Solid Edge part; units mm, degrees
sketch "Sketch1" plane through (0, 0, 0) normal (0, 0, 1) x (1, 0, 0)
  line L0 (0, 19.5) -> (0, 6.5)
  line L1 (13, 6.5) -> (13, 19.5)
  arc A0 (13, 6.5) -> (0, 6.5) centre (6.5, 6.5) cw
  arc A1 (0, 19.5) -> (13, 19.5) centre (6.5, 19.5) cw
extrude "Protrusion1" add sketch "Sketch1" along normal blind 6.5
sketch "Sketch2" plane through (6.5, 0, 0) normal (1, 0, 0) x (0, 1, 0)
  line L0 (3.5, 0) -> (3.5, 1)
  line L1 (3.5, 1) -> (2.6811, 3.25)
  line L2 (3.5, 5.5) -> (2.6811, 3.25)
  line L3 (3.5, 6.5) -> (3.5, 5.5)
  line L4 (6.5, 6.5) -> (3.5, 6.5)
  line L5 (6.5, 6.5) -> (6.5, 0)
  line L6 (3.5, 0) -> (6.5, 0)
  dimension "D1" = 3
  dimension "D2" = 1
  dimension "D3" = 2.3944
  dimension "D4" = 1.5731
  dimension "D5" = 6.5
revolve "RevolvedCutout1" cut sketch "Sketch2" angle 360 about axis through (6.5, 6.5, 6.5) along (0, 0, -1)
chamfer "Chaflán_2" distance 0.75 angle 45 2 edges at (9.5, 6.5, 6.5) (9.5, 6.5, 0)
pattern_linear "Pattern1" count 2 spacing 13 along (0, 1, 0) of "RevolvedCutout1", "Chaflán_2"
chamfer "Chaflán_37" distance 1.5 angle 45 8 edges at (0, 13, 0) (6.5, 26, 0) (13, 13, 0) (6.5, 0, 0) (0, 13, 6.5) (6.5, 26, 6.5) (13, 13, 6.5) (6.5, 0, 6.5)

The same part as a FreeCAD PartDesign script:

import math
import FreeCAD as App
import Part
import Sketcher
from FreeCAD import Vector
Q = App.Units.Quantity


def edges_at(feature, points):
    """Names of the edges that pass closest to the given points."""
    edges = feature.Shape.Edges
    near = lambda p: min(range(len(edges)), key=lambda i: edges[i].distToShape(Part.Vertex(*p))[0])
    return sorted({f"Edge{near(p) + 1}" for p in points})

doc = App.newDocument("Part")
params = doc.addObject("Spreadsheet::Sheet", "Params")
for row, (alias, value) in enumerate([
    ("sketch1_radius", "6.5 mm"),
    ("sketch1_height", "13 mm"),
    ("pad1_length", "6.5 mm"),
    ("sketch2_width", "3 mm"),
    ("sketch2_height", "1 mm"),
    ("sketch2_height2", "6.5 mm"),
    ("groove_angle", "360 deg"),
    ("chamfer_size", "0.75 mm"),
    ("linearpattern_pitch", "13 mm"),
    ("chamfer2_size", "1.5 mm"),
], start=1):
    params.set(f"A{row}", alias)
    params.set(f"B{row}", "=" + value)
    params.setAlias(f"B{row}", alias)

body = doc.addObject("PartDesign::Body", "Body")

sketch1 = doc.addObject("Sketcher::SketchObject", "Sketch")
body.addObject(sketch1)
sketch1.AttachmentSupport = (doc.XY_Plane, [""])
sketch1.MapMode = "FlatFace"
sketch1.addGeometry(Part.ArcOfCircle(Part.Circle(Vector(6, 20, 0), Vector(0, 0, 1), 6), math.radians(0), math.radians(180)), False)
sketch1.addGeometry(Part.LineSegment(Vector(0, 20, 0), Vector(0, 6, 0)), False)
sketch1.addGeometry(Part.ArcOfCircle(Part.Circle(Vector(6, 6, 0), Vector(0, 0, 1), 6), math.radians(180), math.radians(360)), False)
sketch1.addGeometry(Part.LineSegment(Vector(13, 6, 0), Vector(13, 20, 0)), False)
sketch1.addConstraint(Sketcher.Constraint("Tangent", 0, 2, 1, 1))
sketch1.addConstraint(Sketcher.Constraint("Tangent", 1, 2, 2, 1))
sketch1.addConstraint(Sketcher.Constraint("Tangent", 2, 2, 3, 1))
sketch1.addConstraint(Sketcher.Constraint("Tangent", 3, 2, 0, 1))
sketch1.addConstraint(Sketcher.Constraint("Vertical", 1))
sketch1.addConstraint(Sketcher.Constraint("Vertical", 3))
sketch1.addConstraint(Sketcher.Constraint("PointOnObject", 0, 2, -2))
sketch1.addConstraint(Sketcher.Constraint("Radius", 0, 6.5))
sketch1.addConstraint(Sketcher.Constraint("DistanceY", 1, 2, 1, 1, 13.0))
sketch1.addConstraint(Sketcher.Constraint("DistanceY", -1, 1, 0, 3, 19.5))
sketch1.setExpression("Constraints[7]", "Params.sketch1_radius")
sketch1.setExpression("Constraints[8]", "Params.sketch1_height")
pad1 = doc.addObject("PartDesign::Pad", "Pad")
body.addObject(pad1)
pad1.Profile = sketch1
pad1.setExpression("Length", "Params.pad1_length")

sketch2 = doc.addObject("Sketcher::SketchObject", "Sketch001")
body.addObject(sketch2)
sketch2.AttachmentSupport = (doc.YZ_Plane, [""])
sketch2.MapMode = "FlatFace"
sketch2.AttachmentOffset = App.Placement(Vector(0, 0, 6.5), App.Rotation())
sketch2.addGeometry(Part.LineSegment(Vector(3.5, 1, 0), Vector(3.5, 0, 0)), False)
sketch2.addGeometry(Part.LineSegment(Vector(3.5, 0, 0), Vector(6.5, 0, 0)), False)
sketch2.addGeometry(Part.LineSegment(Vector(6.5, 0, 0), Vector(6.5, 6.5, 0)), False)
sketch2.addGeometry(Part.LineSegment(Vector(6.5, 6.5, 0), Vector(3.5, 6.5, 0)), False)
sketch2.addGeometry(Part.LineSegment(Vector(3.5, 6.5, 0), Vector(3.5, 5.5, 0)), False)
sketch2.addGeometry(Part.LineSegment(Vector(3.5, 5.5, 0), Vector(2.7, 3.2, 0)), False)
sketch2.addGeometry(Part.LineSegment(Vector(2.7, 3.2, 0), Vector(3.5, 1, 0)), False)
sketch2.addGeometry(Part.LineSegment(Vector(6.5, 6.5, 0), Vector(6.5, 0, 0)), True)
sketch2.addConstraint(Sketcher.Constraint("Coincident", 0, 2, 1, 1))
sketch2.addConstraint(Sketcher.Constraint("Coincident", 1, 2, 2, 1))
sketch2.addConstraint(Sketcher.Constraint("Coincident", 2, 2, 3, 1))
sketch2.addConstraint(Sketcher.Constraint("Coincident", 3, 2, 4, 1))
sketch2.addConstraint(Sketcher.Constraint("Coincident", 4, 2, 5, 1))
sketch2.addConstraint(Sketcher.Constraint("Coincident", 5, 2, 6, 1))
sketch2.addConstraint(Sketcher.Constraint("Coincident", 6, 2, 0, 1))
sketch2.addConstraint(Sketcher.Constraint("Vertical", 0))
sketch2.addConstraint(Sketcher.Constraint("Horizontal", 1))
sketch2.addConstraint(Sketcher.Constraint("Vertical", 2))
sketch2.addConstraint(Sketcher.Constraint("Horizontal", 3))
sketch2.addConstraint(Sketcher.Constraint("Vertical", 4))
sketch2.addConstraint(Sketcher.Constraint("Vertical", 7))
sketch2.addConstraint(Sketcher.Constraint("Coincident", 7, 1, 2, 2))
sketch2.addConstraint(Sketcher.Constraint("PointOnObject", 0, 2, -1))
sketch2.addConstraint(Sketcher.Constraint("PointOnObject", 7, 2, -1))
sketch2.addConstraint(Sketcher.Constraint("Vertical", 0, 2, 3, 2))
sketch2.addConstraint(Sketcher.Constraint("Equal", 0, 4))
sketch2.addConstraint(Sketcher.Constraint("Equal", 5, 6))
sketch2.addConstraint(Sketcher.Constraint("DistanceX", 1, 1, 1, 2, 3.0))
sketch2.addConstraint(Sketcher.Constraint("DistanceY", 0, 2, 0, 1, 1.0))
sketch2.addConstraint(Sketcher.Constraint("Angle", 5, Q("-109.9993 deg")))
sketch2.addConstraint(Sketcher.Constraint("DistanceY", 2, 1, 2, 2, 6.5))
sketch2.addConstraint(Sketcher.Constraint("DistanceX", -1, 1, 0, 2, 3.5))
sketch2.setExpression("Constraints[19]", "Params.sketch2_width")
sketch2.setExpression("Constraints[20]", "Params.sketch2_height")
sketch2.setExpression("Constraints[22]", "Params.sketch2_height2")
groove = doc.addObject("PartDesign::Groove", "Groove")
body.addObject(groove)
groove.Profile = sketch2
groove.ReferenceAxis = (sketch2, ["Axis0"])
groove.setExpression("Angle", "Params.groove_angle")
doc.recompute()

chamfer = doc.addObject("PartDesign::Chamfer", "Chamfer")
body.addObject(chamfer)
chamfer.Base = (groove, edges_at(groove, [(9.5, 6.5, 6.5), (9.5, 6.5, 0)]))
chamfer.setExpression("Size", "Params.chamfer_size")
doc.recompute()

linearpattern = doc.addObject("PartDesign::LinearPattern", "LinearPattern")
body.addObject(linearpattern)
linearpattern.Originals = [groove, chamfer]
linearpattern.Direction = (doc.Y_Axis, [""])
linearpattern.Mode = "offset"
linearpattern.setExpression("Offset", "Params.linearpattern_pitch")
linearpattern.Occurrences = 2
body.Tip = linearpattern
doc.recompute()

chamfer2 = doc.addObject("PartDesign::Chamfer", "Chamfer001")
body.addObject(chamfer2)
chamfer2.Base = (linearpattern, edges_at(linearpattern, [
    (0, 13, 0),
    (6.5, 26, 0),
    (13, 13, 0),
    (6.5, 0, 0),
    (0, 13, 6.5),
    (6.5, 26, 6.5),
    (13, 13, 6.5),
    (6.5, 0, 6.5),
]))
chamfer2.setExpression("Size", "Params.chamfer2_size")

doc.recompute()
